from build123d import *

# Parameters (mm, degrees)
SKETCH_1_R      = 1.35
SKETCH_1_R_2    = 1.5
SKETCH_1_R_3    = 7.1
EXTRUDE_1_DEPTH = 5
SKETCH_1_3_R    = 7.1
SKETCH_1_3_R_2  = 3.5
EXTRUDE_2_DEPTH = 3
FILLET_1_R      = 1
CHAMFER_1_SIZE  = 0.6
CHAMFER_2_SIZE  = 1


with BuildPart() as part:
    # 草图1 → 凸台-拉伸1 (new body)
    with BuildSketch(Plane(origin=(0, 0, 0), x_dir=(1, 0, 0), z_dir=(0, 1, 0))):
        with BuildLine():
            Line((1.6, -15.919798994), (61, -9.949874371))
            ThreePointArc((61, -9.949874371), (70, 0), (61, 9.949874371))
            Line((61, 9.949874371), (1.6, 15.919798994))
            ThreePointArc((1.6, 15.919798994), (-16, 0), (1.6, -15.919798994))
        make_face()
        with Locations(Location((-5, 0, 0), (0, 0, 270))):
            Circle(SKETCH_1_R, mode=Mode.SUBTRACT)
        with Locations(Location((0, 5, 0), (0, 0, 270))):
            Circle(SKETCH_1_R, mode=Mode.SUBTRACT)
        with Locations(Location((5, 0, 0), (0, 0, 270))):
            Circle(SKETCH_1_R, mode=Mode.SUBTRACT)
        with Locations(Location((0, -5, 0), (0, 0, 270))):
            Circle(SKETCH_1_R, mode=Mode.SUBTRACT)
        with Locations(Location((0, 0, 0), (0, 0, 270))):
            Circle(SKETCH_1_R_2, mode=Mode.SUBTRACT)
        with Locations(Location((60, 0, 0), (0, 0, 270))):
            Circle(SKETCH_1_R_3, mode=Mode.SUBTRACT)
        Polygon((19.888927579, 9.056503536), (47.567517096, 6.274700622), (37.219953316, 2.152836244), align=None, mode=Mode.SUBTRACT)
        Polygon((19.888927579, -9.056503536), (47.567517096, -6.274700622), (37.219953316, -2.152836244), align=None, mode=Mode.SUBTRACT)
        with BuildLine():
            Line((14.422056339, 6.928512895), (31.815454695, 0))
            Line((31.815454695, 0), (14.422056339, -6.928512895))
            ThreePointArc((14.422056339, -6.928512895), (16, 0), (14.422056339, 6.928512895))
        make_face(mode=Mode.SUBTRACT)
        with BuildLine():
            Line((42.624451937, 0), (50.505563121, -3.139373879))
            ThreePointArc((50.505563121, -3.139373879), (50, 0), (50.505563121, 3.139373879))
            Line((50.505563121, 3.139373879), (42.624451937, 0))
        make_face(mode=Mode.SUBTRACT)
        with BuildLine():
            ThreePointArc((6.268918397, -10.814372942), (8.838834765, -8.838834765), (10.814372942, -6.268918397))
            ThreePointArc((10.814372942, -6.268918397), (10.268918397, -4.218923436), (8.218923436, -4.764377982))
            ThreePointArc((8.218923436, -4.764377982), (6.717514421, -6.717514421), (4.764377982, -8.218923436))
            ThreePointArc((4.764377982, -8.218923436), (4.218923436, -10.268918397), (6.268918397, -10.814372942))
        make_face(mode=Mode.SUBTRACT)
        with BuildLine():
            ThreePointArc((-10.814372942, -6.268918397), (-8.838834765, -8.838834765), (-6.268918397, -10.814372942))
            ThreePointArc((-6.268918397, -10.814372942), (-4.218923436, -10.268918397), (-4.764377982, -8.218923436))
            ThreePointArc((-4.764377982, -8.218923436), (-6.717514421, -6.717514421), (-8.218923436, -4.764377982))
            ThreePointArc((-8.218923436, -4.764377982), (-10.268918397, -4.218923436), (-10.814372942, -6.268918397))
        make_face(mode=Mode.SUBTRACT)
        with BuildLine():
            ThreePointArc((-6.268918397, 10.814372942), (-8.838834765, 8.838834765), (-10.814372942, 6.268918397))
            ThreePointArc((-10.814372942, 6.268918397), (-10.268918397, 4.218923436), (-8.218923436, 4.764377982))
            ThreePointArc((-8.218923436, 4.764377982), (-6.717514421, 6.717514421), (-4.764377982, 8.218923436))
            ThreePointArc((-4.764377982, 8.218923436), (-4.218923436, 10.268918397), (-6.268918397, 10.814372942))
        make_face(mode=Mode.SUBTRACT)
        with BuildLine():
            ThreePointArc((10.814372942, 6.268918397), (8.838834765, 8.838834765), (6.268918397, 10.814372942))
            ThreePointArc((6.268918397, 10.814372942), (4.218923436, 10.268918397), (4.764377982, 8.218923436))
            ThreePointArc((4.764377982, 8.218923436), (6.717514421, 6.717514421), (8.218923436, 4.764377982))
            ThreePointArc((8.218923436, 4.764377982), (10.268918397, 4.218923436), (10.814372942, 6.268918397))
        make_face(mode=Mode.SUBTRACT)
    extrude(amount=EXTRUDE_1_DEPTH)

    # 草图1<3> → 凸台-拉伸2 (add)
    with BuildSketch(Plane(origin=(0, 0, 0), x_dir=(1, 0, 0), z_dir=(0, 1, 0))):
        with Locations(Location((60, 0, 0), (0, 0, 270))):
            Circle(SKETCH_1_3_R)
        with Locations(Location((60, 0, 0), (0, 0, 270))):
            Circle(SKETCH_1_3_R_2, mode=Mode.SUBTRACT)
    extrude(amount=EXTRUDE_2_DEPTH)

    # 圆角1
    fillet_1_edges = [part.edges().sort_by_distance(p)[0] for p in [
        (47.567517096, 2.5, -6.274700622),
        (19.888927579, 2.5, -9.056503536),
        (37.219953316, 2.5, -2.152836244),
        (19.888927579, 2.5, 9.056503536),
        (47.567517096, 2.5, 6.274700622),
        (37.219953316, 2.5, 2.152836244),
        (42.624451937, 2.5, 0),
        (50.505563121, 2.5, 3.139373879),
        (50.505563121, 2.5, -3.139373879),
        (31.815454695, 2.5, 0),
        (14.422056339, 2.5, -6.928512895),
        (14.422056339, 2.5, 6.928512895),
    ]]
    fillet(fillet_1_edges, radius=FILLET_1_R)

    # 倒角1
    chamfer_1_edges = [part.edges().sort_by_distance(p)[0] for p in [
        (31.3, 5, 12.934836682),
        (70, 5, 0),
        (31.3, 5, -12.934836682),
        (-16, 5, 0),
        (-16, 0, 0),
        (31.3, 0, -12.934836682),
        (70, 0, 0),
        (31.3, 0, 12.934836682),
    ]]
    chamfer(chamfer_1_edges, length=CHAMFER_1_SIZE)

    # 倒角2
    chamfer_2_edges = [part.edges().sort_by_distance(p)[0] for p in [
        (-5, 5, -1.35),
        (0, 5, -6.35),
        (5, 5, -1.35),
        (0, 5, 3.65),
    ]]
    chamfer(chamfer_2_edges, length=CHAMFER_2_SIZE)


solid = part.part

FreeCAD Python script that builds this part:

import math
import FreeCAD as App
import Part
import Sketcher
from FreeCAD import Vector


def edges_at(feature, points):
    """Names of the edges that pass closest to the given points."""
    edges = feature.Shape.Edges
    near = lambda p: min(range(len(edges)), key=lambda i: edges[i].distToShape(Part.Vertex(*p))[0])
    return sorted({f"Edge{near(p) + 1}" for p in points})

doc = App.newDocument("Part")
params = doc.addObject("Spreadsheet::Sheet", "Params")
for row, (alias, value) in enumerate([
    ("sketch1_diameter", "3 mm"),
    ("sketch1_radius", "10 mm"),
    ("sketch1_radius2", "16 mm"),
    ("sketch1_diameter2", "2.7 mm"),
    ("sketch1_diameter3", "14.2 mm"),
    ("pad1_length", "5 mm"),
    ("sketch2_diameter", "7 mm"),
    ("sketch2_diameter2", "14.2 mm"),
    ("pad2_length", "3 mm"),
    ("fillet_radius", "1 mm"),
    ("chamfer_size", "0.6 mm"),
    ("chamfer2_size", "1 mm"),
], start=1):
    params.set(f"A{row}", alias)
    params.set(f"B{row}", "=" + value)
    params.setAlias(f"B{row}", alias)

body = doc.addObject("PartDesign::Body", "Body")

# Sketch on XZ plane
sketch1 = body.newObject("Sketcher::SketchObject", "Sketch")
sketch1.AttachmentSupport = (doc.getObject("XZ_Plane"), [""])
sketch1.MapMode = "FlatFace"
sketch1.addGeometry([
    Part.LineSegment(Vector(1.6, 15.919799, 0), Vector(61, 9.949874, 0)),  # 0
    Part.ArcOfCircle(Part.Circle(Vector(60, 0, 0), Vector(0, 0, 1), 10), math.radians(-84.26083), math.radians(84.26083)),  # 1
    Part.LineSegment(Vector(61, -9.949874, 0), Vector(1.6, -15.919799, 0)),  # 2
    Part.ArcOfCircle(Part.Circle(Vector(0, 0, 0), Vector(0, 0, 1), 16), math.radians(84.26083), math.radians(275.73917)),  # 3
    Part.ArcOfCircle(Part.Circle(Vector(0, 0, 0), Vector(0, 0, 1), 12.5), math.radians(120.100181), math.radians(149.899819)),  # 4
    Part.ArcOfCircle(Part.Circle(Vector(-9.516648, 5.516648, 0), Vector(0, 0, 1), 1.5), math.radians(149.899819), math.radians(329.899819)),  # 5
    Part.ArcOfCircle(Part.Circle(Vector(0, 0, 0), Vector(0, 0, 1), 9.5), math.radians(120.100181), math.radians(149.899819)),  # 6
    Part.ArcOfCircle(Part.Circle(Vector(-5.516648, 9.516648, 0), Vector(0, 0, 1), 1.5), math.radians(-59.899819), math.radians(120.100181)),  # 7
    Part.ArcOfCircle(Part.Circle(Vector(0, 0, 0), Vector(0, 0, 1), 12.5), math.radians(30.100181), math.radians(59.899819)),  # 8
    Part.ArcOfCircle(Part.Circle(Vector(5.516648, 9.516648, 0), Vector(0, 0, 1), 1.5), math.radians(59.899819), math.radians(239.899819)),  # 9
    Part.ArcOfCircle(Part.Circle(Vector(0, 0, 0), Vector(0, 0, 1), 9.5), math.radians(30.100181), math.radians(59.899819)),  # 10
    Part.ArcOfCircle(Part.Circle(Vector(9.516648, 5.516648, 0), Vector(0, 0, 1), 1.5), math.radians(-149.899819), math.radians(30.100181)),  # 11
    Part.Circle(Vector(0, 5, 0), Vector(0, 0, 1), 1.35),  # 12
    Part.LineSegment(Vector(47.567517, 6.274701, 0), Vector(19.888928, 9.056504, 0)),  # 13
    Part.LineSegment(Vector(19.888928, 9.056504, 0), Vector(37.219953, 2.152836, 0)),  # 14
    Part.LineSegment(Vector(37.219953, 2.152836, 0), Vector(47.567517, 6.274701, 0)),  # 15
    Part.Circle(Vector(-5, 0, 0), Vector(0, 0, 1), 1.35),  # 16
    Part.Circle(Vector(0, 0, 0), Vector(0, 0, 1), 1.5),  # 17
    Part.Circle(Vector(5, 0, 0), Vector(0, 0, 1), 1.35),  # 18
    Part.Circle(Vector(0, -5, 0), Vector(0, 0, 1), 1.35),  # 19
    Part.ArcOfCircle(Part.Circle(Vector(0, 0, 0), Vector(0, 0, 1), 16), math.radians(-25.660137), math.radians(25.660137)),  # 20
    Part.LineSegment(Vector(14.422056, -6.928513, 0), Vector(31.815455, 0, 0)),  # 21
    Part.LineSegment(Vector(31.815455, 0, 0), Vector(14.422056, 6.928513, 0)),  # 22
    Part.ArcOfCircle(Part.Circle(Vector(0, 0, 0), Vector(0, 0, 1), 12.5), math.radians(-149.899819), math.radians(-120.100181)),  # 23
    Part.ArcOfCircle(Part.Circle(Vector(-5.516648, -9.516648, 0), Vector(0, 0, 1), 1.5), math.radians(-120.100181), math.radians(59.899819)),  # 24
    Part.ArcOfCircle(Part.Circle(Vector(0, 0, 0), Vector(0, 0, 1), 9.5), math.radians(-149.899819), math.radians(-120.100181)),  # 25
    Part.ArcOfCircle(Part.Circle(Vector(-9.516648, -5.516648, 0), Vector(0, 0, 1), 1.5), math.radians(30.100181), math.radians(210.100181)),  # 26
    Part.ArcOfCircle(Part.Circle(Vector(0, 0, 0), Vector(0, 0, 1), 12.5), math.radians(-59.899819), math.radians(-30.100181)),  # 27
    Part.ArcOfCircle(Part.Circle(Vector(9.516648, -5.516648, 0), Vector(0, 0, 1), 1.5), math.radians(-30.100181), math.radians(149.899819)),  # 28
    Part.ArcOfCircle(Part.Circle(Vector(0, 0, 0), Vector(0, 0, 1), 9.5), math.radians(-59.899819), math.radians(-30.100181)),  # 29
    Part.ArcOfCircle(Part.Circle(Vector(5.516648, -9.516648, 0), Vector(0, 0, 1), 1.5), math.radians(120.100181), math.radians(300.100181)),  # 30
    Part.LineSegment(Vector(50.505563, 3.139374, 0), Vector(42.624452, 0, 0)),  # 31
    Part.LineSegment(Vector(42.624452, 0, 0), Vector(50.505563, -3.139374, 0)),  # 32
    Part.ArcOfCircle(Part.Circle(Vector(60, 0, 0), Vector(0, 0, 1), 10), math.radians(161.703323), math.radians(198.296677)),  # 33
    Part.Circle(Vector(60, 0, 0), Vector(0, 0, 1), 7.1),  # 34
    Part.LineSegment(Vector(37.219953, -2.152836, 0), Vector(19.888928, -9.056504, 0)),  # 35
    Part.LineSegment(Vector(19.888928, -9.056504, 0), Vector(47.567517, -6.274701, 0)),  # 36
    Part.LineSegment(Vector(47.567517, -6.274701, 0), Vector(37.219953, -2.152836, 0)),  # 37
], False)
sketch1.addConstraint([
    Sketcher.Constraint("Tangent", 0, 2, 1, 2),
    Sketcher.Constraint("Tangent", 1, 1, 2, 1),
    Sketcher.Constraint("Tangent", 2, 2, 3, 2),
    Sketcher.Constraint("Tangent", 3, 1, 0, 1),
    Sketcher.Constraint("Tangent", 4, 2, 5, 1),
    Sketcher.Constraint("Tangent", 5, 2, 6, 2),
    Sketcher.Constraint("Tangent", 6, 1, 7, 1),
    Sketcher.Constraint("Tangent", 7, 2, 4, 1),
    Sketcher.Constraint("Tangent", 8, 2, 9, 1),
    Sketcher.Constraint("Tangent", 9, 2, 10, 2),
    Sketcher.Constraint("Tangent", 10, 1, 11, 1),
    Sketcher.Constraint("Tangent", 11, 2, 8, 1),
    Sketcher.Constraint("Coincident", 13, 2, 14, 1),
    Sketcher.Constraint("Coincident", 14, 2, 15, 1),
    Sketcher.Constraint("Coincident", 15, 2, 13, 1),
    Sketcher.Constraint("Coincident", 20, 1, 21, 1),
    Sketcher.Constraint("Coincident", 21, 2, 22, 1),
    Sketcher.Constraint("Coincident", 22, 2, 20, 2),
    Sketcher.Constraint("Tangent", 23, 2, 24, 1),
    Sketcher.Constraint("Tangent", 24, 2, 25, 2),
    Sketcher.Constraint("Tangent", 25, 1, 26, 1),
    Sketcher.Constraint("Tangent", 26, 2, 23, 1),
    Sketcher.Constraint("Tangent", 27, 2, 28, 1),
    Sketcher.Constraint("Tangent", 28, 2, 29, 2),
    Sketcher.Constraint("Tangent", 29, 1, 30, 1),
    Sketcher.Constraint("Tangent", 30, 2, 27, 1),
    Sketcher.Constraint("Coincident", 31, 2, 32, 1),
    Sketcher.Constraint("Coincident", 32, 2, 33, 2),
    Sketcher.Constraint("Coincident", 33, 1, 31, 1),
    Sketcher.Constraint("Coincident", 35, 2, 36, 1),
    Sketcher.Constraint("Coincident", 36, 2, 37, 1),
    Sketcher.Constraint("Coincident", 37, 2, 35, 1),
    Sketcher.Constraint("Coincident", 3, 3, -1, 1),
    Sketcher.Constraint("Coincident", 4, 3, -1, 1),
    Sketcher.Constraint("Coincident", 6, 3, -1, 1),
    Sketcher.Constraint("Coincident", 8, 3, -1, 1),
    Sketcher.Constraint("Coincident", 10, 3, -1, 1),
    Sketcher.Constraint("Coincident", 17, 3, -1, 1),
    Sketcher.Constraint("Coincident", 20, 3, -1, 1),
    Sketcher.Constraint("Coincident", 23, 3, -1, 1),
    Sketcher.Constraint("Coincident", 25, 3, -1, 1),
    Sketcher.Constraint("Coincident", 27, 3, -1, 1),
    Sketcher.Constraint("Coincident", 29, 3, -1, 1),
    Sketcher.Constraint("Coincident", 33, 3, 1, 3),
    Sketcher.Constraint("Coincident", 34, 3, 1, 3),
    Sketcher.Constraint("Equal", 4, 8),
    Sketcher.Constraint("Equal", 7, 9),
    Sketcher.Constraint("Equal", 12, 16),
    Sketcher.Constraint("Equal", 11, 17),
    Sketcher.Constraint("Equal", 16, 18),
    Sketcher.Constraint("Equal", 18, 19),
    Sketcher.Constraint("Equal", 3, 20),
    Sketcher.Constraint("Equal", 8, 23),
    Sketcher.Constraint("Equal", 17, 24),
    Sketcher.Constraint("Equal", 23, 27),
    Sketcher.Constraint("Equal", 26, 28),
    Sketcher.Constraint("Equal", 1, 33),
    Sketcher.Constraint("Symmetric", 16, 3, 18, 3, -1, 1),
    Sketcher.Constraint("Symmetric", 12, 3, 19, 3, -1, 1),
    Sketcher.Constraint("Symmetric", 32, 2, 33, 1, -1),
    Sketcher.Constraint("Symmetric", 13, 2, 35, 2, -1),
    Sketcher.Constraint("Symmetric", 15, 2, 36, 2, -1),
    Sketcher.Constraint("Symmetric", 14, 2, 37, 2, -1),
    Sketcher.Constraint("PointOnObject", 12, 3, -2),
    Sketcher.Constraint("PointOnObject", 16, 3, -1),
    Sketcher.Constraint("PointOnObject", 21, 2, -1),
    Sketcher.Constraint("PointOnObject", 31, 2, -1),
    Sketcher.Constraint("Parallel", 0, 13),
    Sketcher.Constraint("Parallel", 15, 21),
    Sketcher.Constraint("Parallel", 14, 22),
    Sketcher.Constraint("Parallel", 21, 31),
    Sketcher.Constraint("Parallel", 22, 32),
    Sketcher.Constraint("Horizontal", 7, 3, 9, 3),
    Sketcher.Constraint("Horizontal", 5, 3, 11, 3),
    Sketcher.Constraint("Horizontal", 26, 3, 28, 3),
    Sketcher.Constraint("Horizontal", 24, 3, 30, 3),
    Sketcher.Constraint("Vertical", 7, 3, 24, 3),
    Sketcher.Constraint("Vertical", 5, 3, 26, 3),
    Sketcher.Constraint("Diameter", 17, 3.0),
    Sketcher.Constraint("Radius", 1, 10.0),
    Sketcher.Constraint("Radius", 3, 16.0),
    Sketcher.Constraint("Diameter", 12, 2.7),
    Sketcher.Constraint("Diameter", 34, 14.2),
    Sketcher.Constraint("Radius", 4, 12.5),
    Sketcher.Constraint("DistanceX", -1, 1, 1, 3, 60.0),
    Sketcher.Constraint("DistanceY", -1, 1, 12, 3, 5.0),
    Sketcher.Constraint("DistanceX", 16, 3, -1, 1, 5.0),
    Sketcher.Constraint("DistanceX", 5, 3, 7, 3, 4.0),
    Sketcher.Constraint("DistanceY", 5, 3, 7, 3, 4.0),
    Sketcher.Constraint("DistanceY", -1, 1, 15, 2, 6.274701),
    Sketcher.Constraint("DistanceX", 21, 2, 14, 2, 5.404499),
    Sketcher.Constraint("DistanceX", 20, 1, 21, 2, 17.393398),
    Sketcher.Constraint("DistanceX", 14, 2, 31, 2, 5.404499),
    Sketcher.Constraint("Distance", 13, 27.818029),
    Sketcher.Constraint("Distance", 14, 18.65543),
])
sketch1.setExpression("Constraints[78]", "Params.sketch1_diameter")
sketch1.setExpression("Constraints[79]", "Params.sketch1_radius")
sketch1.setExpression("Constraints[80]", "Params.sketch1_radius2")
sketch1.setExpression("Constraints[81]", "Params.sketch1_diameter2")
sketch1.setExpression("Constraints[82]", "Params.sketch1_diameter3")
pad1 = body.newObject("PartDesign::Pad", "Pad")
pad1.Profile = sketch1
pad1.setExpression("Length", "Params.pad1_length")
pad1.Reversed = True

# Sketch on XZ plane
sketch2 = body.newObject("Sketcher::SketchObject", "Sketch001")
sketch2.AttachmentSupport = (doc.getObject("XZ_Plane"), [""])
sketch2.MapMode = "FlatFace"
sketch2.addGeometry([
    Part.Circle(Vector(60, 0, 0), Vector(0, 0, 1), 7.1),
    Part.Circle(Vector(60, 0, 0), Vector(0, 0, 1), 3.5),
], False)
sketch2.addConstraint([
    Sketcher.Constraint("Coincident", 1, 3, 0, 3),
    Sketcher.Constraint("PointOnObject", 0, 3, -1),
    Sketcher.Constraint("Diameter", 1, 7.0),
    Sketcher.Constraint("Diameter", 0, 14.2),
    Sketcher.Constraint("DistanceX", -1, 1, 0, 3, 60.0),
])
sketch2.setExpression("Constraints[2]", "Params.sketch2_diameter")
sketch2.setExpression("Constraints[3]", "Params.sketch2_diameter2")
pad2 = body.newObject("PartDesign::Pad", "Pad001")
pad2.Profile = sketch2
pad2.setExpression("Length", "Params.pad2_length")
pad2.Reversed = True
doc.recompute()

fillet = body.newObject("PartDesign::Fillet", "Fillet")
fillet.Base = (pad2, edges_at(pad2, [
    (47.568, 2.5, -6.275),
    (19.889, 2.5, -9.057),
    (37.22, 2.5, -2.153),
    (19.889, 2.5, 9.057),
    (47.568, 2.5, 6.275),
    (37.22, 2.5, 2.153),
    (42.624, 2.5, 0),
    (50.506, 2.5, 3.139),
    (50.506, 2.5, -3.139),
    (31.815, 2.5, 0),
    (14.422, 2.5, -6.929),
    (14.422, 2.5, 6.929),
]))
fillet.setExpression("Radius", "Params.fillet_radius")
doc.recompute()

chamfer = body.newObject("PartDesign::Chamfer", "Chamfer")
chamfer.Base = (fillet, edges_at(fillet, [
    (31.3, 5, 12.935),
    (70, 5, 0),
    (31.3, 5, -12.935),
    (-16, 5, 0),
    (-16, 0, 0),
    (31.3, 0, -12.935),
    (70, 0, 0),
    (31.3, 0, 12.935),
]))
chamfer.setExpression("Size", "Params.chamfer_size")
doc.recompute()

chamfer2 = body.newObject("PartDesign::Chamfer", "Chamfer001")
chamfer2.Base = (chamfer, edges_at(chamfer, [
    (-5, 5, -1.35),
    (0, 5, -6.35),
    (5, 5, -1.35),
    (0, 5, 3.65),
]))
chamfer2.setExpression("Size", "Params.chamfer2_size")

doc.recompute()
